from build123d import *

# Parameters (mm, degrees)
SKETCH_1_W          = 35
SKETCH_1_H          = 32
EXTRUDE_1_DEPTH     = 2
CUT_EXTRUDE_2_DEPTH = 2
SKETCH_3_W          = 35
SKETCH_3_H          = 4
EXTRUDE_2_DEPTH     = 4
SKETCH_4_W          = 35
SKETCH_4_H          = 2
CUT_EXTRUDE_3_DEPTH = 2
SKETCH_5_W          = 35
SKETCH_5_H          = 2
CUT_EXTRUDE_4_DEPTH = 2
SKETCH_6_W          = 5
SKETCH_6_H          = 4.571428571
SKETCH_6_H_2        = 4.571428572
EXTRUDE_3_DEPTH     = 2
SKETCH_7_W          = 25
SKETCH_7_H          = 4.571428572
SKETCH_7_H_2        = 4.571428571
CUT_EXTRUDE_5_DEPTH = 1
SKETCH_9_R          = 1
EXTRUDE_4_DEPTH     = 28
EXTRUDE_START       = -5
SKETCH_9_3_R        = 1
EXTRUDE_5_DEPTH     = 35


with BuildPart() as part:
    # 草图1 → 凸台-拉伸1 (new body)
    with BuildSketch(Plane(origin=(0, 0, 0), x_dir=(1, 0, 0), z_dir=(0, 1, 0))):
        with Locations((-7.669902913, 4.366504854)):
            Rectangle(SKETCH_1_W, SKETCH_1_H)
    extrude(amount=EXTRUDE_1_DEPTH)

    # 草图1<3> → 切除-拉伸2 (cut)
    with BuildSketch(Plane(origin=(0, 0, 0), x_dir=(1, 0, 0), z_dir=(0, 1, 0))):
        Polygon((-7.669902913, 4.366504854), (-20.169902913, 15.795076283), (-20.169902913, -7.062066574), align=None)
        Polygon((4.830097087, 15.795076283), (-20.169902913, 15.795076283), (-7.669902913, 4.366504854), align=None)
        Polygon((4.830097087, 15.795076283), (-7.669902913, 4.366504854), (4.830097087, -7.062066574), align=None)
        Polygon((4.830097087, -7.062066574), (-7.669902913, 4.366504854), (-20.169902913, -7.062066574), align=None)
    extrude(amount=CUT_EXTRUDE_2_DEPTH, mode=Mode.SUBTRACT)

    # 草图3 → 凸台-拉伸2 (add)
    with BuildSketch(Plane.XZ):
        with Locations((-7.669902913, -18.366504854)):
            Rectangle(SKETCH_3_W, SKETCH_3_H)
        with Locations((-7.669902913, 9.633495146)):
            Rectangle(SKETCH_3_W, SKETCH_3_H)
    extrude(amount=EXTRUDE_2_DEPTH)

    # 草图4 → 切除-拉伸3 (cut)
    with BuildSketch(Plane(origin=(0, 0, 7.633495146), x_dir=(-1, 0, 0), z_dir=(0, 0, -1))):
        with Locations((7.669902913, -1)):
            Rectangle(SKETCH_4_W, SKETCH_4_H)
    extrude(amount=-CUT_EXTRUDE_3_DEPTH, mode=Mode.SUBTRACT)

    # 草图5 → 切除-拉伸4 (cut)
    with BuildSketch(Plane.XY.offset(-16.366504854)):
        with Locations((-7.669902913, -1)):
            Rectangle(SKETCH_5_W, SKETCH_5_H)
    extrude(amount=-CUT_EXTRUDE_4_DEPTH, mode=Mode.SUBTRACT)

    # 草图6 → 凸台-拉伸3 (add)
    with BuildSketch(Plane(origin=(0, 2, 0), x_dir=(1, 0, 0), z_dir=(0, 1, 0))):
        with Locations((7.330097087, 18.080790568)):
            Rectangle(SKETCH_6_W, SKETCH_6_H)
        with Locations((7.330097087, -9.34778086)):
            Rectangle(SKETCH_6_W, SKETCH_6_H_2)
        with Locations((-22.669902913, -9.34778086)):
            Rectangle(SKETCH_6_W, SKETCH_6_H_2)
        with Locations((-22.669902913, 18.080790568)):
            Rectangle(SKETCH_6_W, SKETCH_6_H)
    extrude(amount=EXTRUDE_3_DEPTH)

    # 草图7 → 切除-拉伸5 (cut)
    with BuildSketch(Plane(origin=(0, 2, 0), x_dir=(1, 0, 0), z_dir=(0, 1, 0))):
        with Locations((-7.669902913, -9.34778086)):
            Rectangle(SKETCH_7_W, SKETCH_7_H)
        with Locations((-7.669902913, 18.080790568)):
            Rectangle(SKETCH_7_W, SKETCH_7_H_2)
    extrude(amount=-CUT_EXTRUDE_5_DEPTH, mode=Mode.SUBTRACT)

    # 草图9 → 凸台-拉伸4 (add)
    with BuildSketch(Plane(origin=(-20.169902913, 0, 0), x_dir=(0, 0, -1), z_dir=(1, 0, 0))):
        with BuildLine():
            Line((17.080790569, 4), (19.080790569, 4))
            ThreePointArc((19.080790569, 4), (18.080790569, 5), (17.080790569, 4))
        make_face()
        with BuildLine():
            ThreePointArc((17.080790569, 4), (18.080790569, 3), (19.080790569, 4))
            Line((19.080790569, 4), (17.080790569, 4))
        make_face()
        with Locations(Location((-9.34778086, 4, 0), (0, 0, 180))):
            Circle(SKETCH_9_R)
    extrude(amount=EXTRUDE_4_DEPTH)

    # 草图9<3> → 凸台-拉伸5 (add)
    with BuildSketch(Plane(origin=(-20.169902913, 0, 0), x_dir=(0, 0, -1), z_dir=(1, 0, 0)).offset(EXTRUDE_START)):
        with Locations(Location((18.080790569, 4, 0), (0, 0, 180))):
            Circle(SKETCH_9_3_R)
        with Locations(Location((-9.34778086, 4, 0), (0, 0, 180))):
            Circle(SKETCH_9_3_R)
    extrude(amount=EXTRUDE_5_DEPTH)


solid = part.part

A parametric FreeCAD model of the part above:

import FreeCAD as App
import Part
import Sketcher
Q = App.Units.Quantity


def add_polygon(sketch, points):
    """Adds a closed chain of lines whose ends are joined by coincident constraints."""
    first, n = sketch.GeometryCount, len(points)
    for a, b in zip(points, points[1:] + points[:1]):
        sketch.addGeometry(Part.LineSegment(App.Vector(*a, 0), App.Vector(*b, 0)), False)
    for i in range(n):
        sketch.addConstraint(Sketcher.Constraint("Coincident", first + i, 2, first + (i + 1) % n, 1))

doc = App.newDocument("Part")
params = doc.addObject("Spreadsheet::Sheet", "Params")
for row, (alias, value) in enumerate([
    ("sketch1_width", "35 mm"),
    ("sketch1_height", "32 mm"),
    ("pad1_length", "2 mm"),
    ("sketch2_width", "25 mm"),
    ("pocket1_length", "2 mm"),
    ("sketch3_width", "35 mm"),
    ("sketch3_height", "4 mm"),
    ("pad2_length", "4 mm"),
    ("sketch4_width", "35 mm"),
    ("sketch4_height", "2 mm"),
    ("pocket2_length", "2 mm"),
    ("sketch5_width", "35 mm"),
    ("sketch5_height", "2 mm"),
    ("pocket3_length", "2 mm"),
    ("sketch6_width", "5 mm"),
    ("pad3_length", "2 mm"),
    ("sketch7_width", "25 mm"),
    ("pocket4_length", "1 mm"),
    ("sketch8_diameter", "2 mm"),
    ("pad4_length", "28 mm"),
    ("sketch9_diameter", "2 mm"),
    ("pad5_length", "35 mm"),
], start=1):
    params.set(f"A{row}", alias)
    params.set(f"B{row}", "=" + value)
    params.setAlias(f"B{row}", alias)

body = doc.addObject("PartDesign::Body", "Body")

sketch1 = body.newObject("Sketcher::SketchObject", "Sketch")
sketch1.AttachmentSupport = (doc.getObject("XZ_Plane"), [""])
sketch1.MapMode = "FlatFace"
add_polygon(sketch1, [(-25, -20), (-25, 12), (10, 12), (10, -20)])
sketch1.addConstraint(Sketcher.Constraint("Vertical", 0))
sketch1.addConstraint(Sketcher.Constraint("Horizontal", 1))
sketch1.addConstraint(Sketcher.Constraint("Vertical", 2))
sketch1.addConstraint(Sketcher.Constraint("Horizontal", 3))
sketch1.addConstraint(Sketcher.Constraint("DistanceX", 1, 1, 1, 2, Q("35 mm")))
sketch1.addConstraint(Sketcher.Constraint("DistanceY", 0, 1, 0, 2, Q("32 mm")))
sketch1.addConstraint(Sketcher.Constraint("DistanceX", 0, 2, -1, 1, Q("25.169903 mm")))
sketch1.addConstraint(Sketcher.Constraint("DistanceY", -1, 1, 0, 2, Q("11.633495 mm")))
sketch1.setExpression("Constraints[8]", "Params.sketch1_width")
sketch1.setExpression("Constraints[9]", "Params.sketch1_height")
pad1 = body.newObject("PartDesign::Pad", "Pad")
pad1.Profile = sketch1
pad1.setExpression("Length", "Params.pad1_length")
pad1.Reversed = True

sketch2 = body.newObject("Sketcher::SketchObject", "Sketch001")
sketch2.AttachmentSupport = (doc.getObject("XZ_Plane"), [""])
sketch2.MapMode = "FlatFace"
add_polygon(sketch2, [(-20, -16), (-20, 7), (5, 7), (5, -16)])
sketch2.addConstraint(Sketcher.Constraint("Vertical", 0))
sketch2.addConstraint(Sketcher.Constraint("Horizontal", 1))
sketch2.addConstraint(Sketcher.Constraint("Vertical", 2))
sketch2.addConstraint(Sketcher.Constraint("Horizontal", 3))
sketch2.addConstraint(Sketcher.Constraint("DistanceX", 1, 1, 1, 2, Q("25 mm")))
sketch2.addConstraint(Sketcher.Constraint("DistanceY", 0, 1, 0, 2, Q("22.857143 mm")))
sketch2.addConstraint(Sketcher.Constraint("DistanceX", 0, 2, -1, 1, Q("20.169903 mm")))
sketch2.addConstraint(Sketcher.Constraint("DistanceY", -1, 1, 0, 2, Q("7.062067 mm")))
sketch2.setExpression("Constraints[8]", "Params.sketch2_width")
pocket1 = body.newObject("PartDesign::Pocket", "Pocket")
pocket1.Profile = sketch2
pocket1.setExpression("Length", "Params.pocket1_length")

sketch3 = body.newObject("Sketcher::SketchObject", "Sketch002")
sketch3.AttachmentSupport = (doc.getObject("XZ_Plane"), [""])
sketch3.MapMode = "FlatFace"
add_polygon(sketch3, [(-25.2, -16.4), (-25.2, -20.4), (9.8, -20.4), (9.8, -16.4)])
add_polygon(sketch3, [(-25.2, 11.6), (-25.2, 7.6), (9.8, 7.6), (9.8, 11.6)])
sketch3.addConstraint(Sketcher.Constraint("Vertical", 0))
sketch3.addConstraint(Sketcher.Constraint("Horizontal", 1))
sketch3.addConstraint(Sketcher.Constraint("Vertical", 2))
sketch3.addConstraint(Sketcher.Constraint("Horizontal", 3))
sketch3.addConstraint(Sketcher.Constraint("Vertical", 4))
sketch3.addConstraint(Sketcher.Constraint("Horizontal", 5))
sketch3.addConstraint(Sketcher.Constraint("Vertical", 6))
sketch3.addConstraint(Sketcher.Constraint("Horizontal", 7))
sketch3.addConstraint(Sketcher.Constraint("Vertical", 3, 2, 4, 2))
sketch3.addConstraint(Sketcher.Constraint("Vertical", 2, 2, 5, 2))
sketch3.addConstraint(Sketcher.Constraint("Equal", 2, 4))
sketch3.addConstraint(Sketcher.Constraint("DistanceX", 1, 1, 1, 2, Q("35 mm")))
sketch3.addConstraint(Sketcher.Constraint("DistanceY", 0, 2, 0, 1, Q("4 mm")))
sketch3.addConstraint(Sketcher.Constraint("DistanceY", 3, 2, 4, 2, Q("24 mm")))
sketch3.addConstraint(Sketcher.Constraint("DistanceX", 0, 2, -1, 1, Q("25.169903 mm")))
sketch3.addConstraint(Sketcher.Constraint("DistanceY", 0, 2, -1, 1, Q("20.366505 mm")))
sketch3.setExpression("Constraints[19]", "Params.sketch3_width")
sketch3.setExpression("Constraints[20]", "Params.sketch3_height")
pad2 = body.newObject("PartDesign::Pad", "Pad001")
pad2.Profile = sketch3
pad2.setExpression("Length", "Params.pad2_length")

sketch4 = body.newObject("Sketcher::SketchObject", "Sketch003")
sketch4.AttachmentSupport = (doc.getObject("XY_Plane"), [""])
sketch4.MapMode = "FlatFace"
sketch4.AttachmentOffset = App.Placement(App.Vector(0, 0, 7.633495), App.Rotation())
add_polygon(sketch4, [(9.8, 0), (9.8, -2), (-25.2, -2), (-25.2, 0)])
sketch4.addConstraint(Sketcher.Constraint("Vertical", 0))
sketch4.addConstraint(Sketcher.Constraint("Horizontal", 1))
sketch4.addConstraint(Sketcher.Constraint("Vertical", 2))
sketch4.addConstraint(Sketcher.Constraint("Horizontal", 3))
sketch4.addConstraint(Sketcher.Constraint("PointOnObject", 2, 2, -1))
sketch4.addConstraint(Sketcher.Constraint("DistanceX", 1, 2, 1, 1, Q("35 mm")))
sketch4.addConstraint(Sketcher.Constraint("DistanceY", 0, 2, 0, 1, Q("2 mm")))
sketch4.addConstraint(Sketcher.Constraint("DistanceX", -1, 1, 0, 2, Q("9.830097 mm")))
sketch4.setExpression("Constraints[9]", "Params.sketch4_width")
sketch4.setExpression("Constraints[10]", "Params.sketch4_height")
pocket2 = body.newObject("PartDesign::Pocket", "Pocket001")
pocket2.Profile = sketch4
pocket2.setExpression("Length", "Params.pocket2_length")
pocket2.Reversed = True

sketch5 = body.newObject("Sketcher::SketchObject", "Sketch004")
sketch5.AttachmentSupport = (doc.getObject("XY_Plane"), [""])
sketch5.MapMode = "FlatFace"
sketch5.AttachmentOffset = App.Placement(App.Vector(0, 0, -16.366505), App.Rotation())
add_polygon(sketch5, [(-25.2, 0), (-25.2, -2), (9.8, -2), (9.8, 0)])
sketch5.addConstraint(Sketcher.Constraint("Vertical", 0))
sketch5.addConstraint(Sketcher.Constraint("Horizontal", 1))
sketch5.addConstraint(Sketcher.Constraint("Vertical", 2))
sketch5.addConstraint(Sketcher.Constraint("Horizontal", 3))
sketch5.addConstraint(Sketcher.Constraint("PointOnObject", 2, 2, -1))
sketch5.addConstraint(Sketcher.Constraint("DistanceX", 1, 1, 1, 2, Q("35 mm")))
sketch5.addConstraint(Sketcher.Constraint("DistanceY", 0, 2, 0, 1, Q("2 mm")))
sketch5.addConstraint(Sketcher.Constraint("DistanceX", 0, 2, -1, 1, Q("25.169903 mm")))
sketch5.setExpression("Constraints[9]", "Params.sketch5_width")
sketch5.setExpression("Constraints[10]", "Params.sketch5_height")
pocket3 = body.newObject("PartDesign::Pocket", "Pocket002")
pocket3.Profile = sketch5
pocket3.setExpression("Length", "Params.pocket3_length")

sketch6 = body.newObject("Sketcher::SketchObject", "Sketch005")
sketch6.AttachmentSupport = (doc.getObject("XZ_Plane"), [""])
sketch6.MapMode = "FlatFace"
sketch6.AttachmentOffset = App.Placement(App.Vector(0, 0, -2), App.Rotation())
add_polygon(sketch6, [(4.8, -20.4), (4.8, -15.8), (9.8, -15.8), (9.8, -20.4)])
add_polygon(sketch6, [(4.8, 7.1), (4.8, 11.6), (9.8, 11.6), (9.8, 7.1)])
add_polygon(sketch6, [(-25.2, 7.1), (-25.2, 11.6), (-20.2, 11.6), (-20.2, 7.1)])
add_polygon(sketch6, [(-25.2, -20.4), (-25.2, -15.8), (-20.2, -15.8), (-20.2, -20.4)])
sketch6.addConstraint(Sketcher.Constraint("Vertical", 0))
sketch6.addConstraint(Sketcher.Constraint("Horizontal", 1))
sketch6.addConstraint(Sketcher.Constraint("Vertical", 2))
sketch6.addConstraint(Sketcher.Constraint("Horizontal", 3))
sketch6.addConstraint(Sketcher.Constraint("Vertical", 4))
sketch6.addConstraint(Sketcher.Constraint("Horizontal", 5))
sketch6.addConstraint(Sketcher.Constraint("Vertical", 6))
sketch6.addConstraint(Sketcher.Constraint("Horizontal", 7))
sketch6.addConstraint(Sketcher.Constraint("Vertical", 8))
sketch6.addConstraint(Sketcher.Constraint("Horizontal", 9))
sketch6.addConstraint(Sketcher.Constraint("Vertical", 10))
sketch6.addConstraint(Sketcher.Constraint("Horizontal", 11))
sketch6.addConstraint(Sketcher.Constraint("Vertical", 12))
sketch6.addConstraint(Sketcher.Constraint("Horizontal", 13))
sketch6.addConstraint(Sketcher.Constraint("Vertical", 14))
sketch6.addConstraint(Sketcher.Constraint("Horizontal", 15))
sketch6.addConstraint(Sketcher.Constraint("Horizontal", 5, 2, 8, 2))
sketch6.addConstraint(Sketcher.Constraint("Horizontal", 7, 2, 10, 2))
sketch6.addConstraint(Sketcher.Constraint("Horizontal", 1, 2, 12, 2))
sketch6.addConstraint(Sketcher.Constraint("Horizontal", 3, 2, 14, 2))
sketch6.addConstraint(Sketcher.Constraint("Vertical", 3, 2, 4, 2))
sketch6.addConstraint(Sketcher.Constraint("Vertical", 2, 2, 5, 2))
sketch6.addConstraint(Sketcher.Constraint("Vertical", 11, 2, 12, 2))
sketch6.addConstraint(Sketcher.Constraint("Vertical", 10, 2, 13, 2))
sketch6.addConstraint(Sketcher.Constraint("Equal", 7, 9))
sketch6.addConstraint(Sketcher.Constraint("Equal", 2, 4))
sketch6.addConstraint(Sketcher.Constraint("DistanceX", 1, 1, 1, 2, Q("5 mm")))
sketch6.addConstraint(Sketcher.Constraint("DistanceY", 3, 2, 4, 2, Q("32 mm")))
sketch6.addConstraint(Sketcher.Constraint("DistanceX", 8, 2, 4, 2, Q("30 mm")))
sketch6.addConstraint(Sketcher.Constraint("DistanceY", 0, 1, 0, 2, Q("4.571429 mm")))
sketch6.addConstraint(Sketcher.Constraint("DistanceX", -1, 1, 0, 2, Q("4.830097 mm")))
sketch6.addConstraint(Sketcher.Constraint("DistanceY", 0, 2, -1, 1, Q("15.795076 mm")))
sketch6.setExpression("Constraints[42]", "Params.sketch6_width")
pad3 = body.newObject("PartDesign::Pad", "Pad002")
pad3.Profile = sketch6
pad3.setExpression("Length", "Params.pad3_length")
pad3.Reversed = True

sketch7 = body.newObject("Sketcher::SketchObject", "Sketch006")
sketch7.AttachmentSupport = (doc.getObject("XZ_Plane"), [""])
sketch7.MapMode = "FlatFace"
sketch7.AttachmentOffset = App.Placement(App.Vector(0, 0, -2), App.Rotation())
add_polygon(sketch7, [(-20.2, 7.1), (-20.2, 11.6), (4.8, 11.6), (4.8, 7.1)])
add_polygon(sketch7, [(-20.2, -20.4), (-20.2, -15.8), (4.8, -15.8), (4.8, -20.4)])
sketch7.addConstraint(Sketcher.Constraint("Vertical", 0))
sketch7.addConstraint(Sketcher.Constraint("Horizontal", 1))
sketch7.addConstraint(Sketcher.Constraint("Vertical", 2))
sketch7.addConstraint(Sketcher.Constraint("Horizontal", 3))
sketch7.addConstraint(Sketcher.Constraint("Vertical", 4))
sketch7.addConstraint(Sketcher.Constraint("Horizontal", 5))
sketch7.addConstraint(Sketcher.Constraint("Vertical", 6))
sketch7.addConstraint(Sketcher.Constraint("Horizontal", 7))
sketch7.addConstraint(Sketcher.Constraint("Vertical", 3, 2, 4, 2))
sketch7.addConstraint(Sketcher.Constraint("Vertical", 2, 2, 5, 2))
sketch7.addConstraint(Sketcher.Constraint("Equal", 2, 4))
sketch7.addConstraint(Sketcher.Constraint("DistanceX", 1, 1, 1, 2, Q("25 mm")))
sketch7.addConstraint(Sketcher.Constraint("DistanceY", 6, 2, 1, 2, Q("32 mm")))
sketch7.addConstraint(Sketcher.Constraint("DistanceY", 0, 1, 0, 2, Q("4.571429 mm")))
sketch7.addConstraint(Sketcher.Constraint("DistanceX", 0, 2, -1, 1, Q("20.169903 mm")))
sketch7.addConstraint(Sketcher.Constraint("DistanceY", -1, 1, 0, 2, Q("11.633495 mm")))
sketch7.setExpression("Constraints[19]", "Params.sketch7_width")
pocket4 = body.newObject("PartDesign::Pocket", "Pocket003")
pocket4.Profile = sketch7
pocket4.setExpression("Length", "Params.pocket4_length")
pocket4.Reversed = True

sketch8 = body.newObject("Sketcher::SketchObject", "Sketch007")
sketch8.AttachmentSupport = (doc.getObject("YZ_Plane"), [""])
sketch8.MapMode = "FlatFace"
sketch8.AttachmentOffset = App.Placement(App.Vector(0, 0, -20.169903), App.Rotation())
sketch8.addGeometry(Part.Circle(App.Vector(4, -18.1, 0), App.Vector(0, 0, 1), 1), False)
sketch8.addGeometry(Part.Circle(App.Vector(4, 9.3, 0), App.Vector(0, 0, 1), 1), False)
sketch8.addConstraint(Sketcher.Constraint("Equal", 0, 1))
sketch8.addConstraint(Sketcher.Constraint("Vertical", 0, 3, 1, 3))
sketch8.addConstraint(Sketcher.Constraint("Diameter", 0, Q("2 mm")))
sketch8.addConstraint(Sketcher.Constraint("DistanceX", -1, 1, 0, 3, Q("4 mm")))
sketch8.addConstraint(Sketcher.Constraint("DistanceY", 0, 3, -1, 1, Q("18.080791 mm")))
sketch8.addConstraint(Sketcher.Constraint("DistanceY", -1, 1, 1, 3, Q("9.347781 mm")))
sketch8.setExpression("Constraints[2]", "Params.sketch8_diameter")
pad4 = body.newObject("PartDesign::Pad", "Pad003")
pad4.Profile = sketch8
pad4.setExpression("Length", "Params.pad4_length")

sketch9 = body.newObject("Sketcher::SketchObject", "Sketch008")
sketch9.AttachmentSupport = (doc.getObject("YZ_Plane"), [""])
sketch9.MapMode = "FlatFace"
sketch9.AttachmentOffset = App.Placement(App.Vector(0, 0, -25.169903), App.Rotation())
sketch9.addGeometry(Part.Circle(App.Vector(4, -18.1, 0), App.Vector(0, 0, 1), 1), False)
sketch9.addGeometry(Part.Circle(App.Vector(4, 9.3, 0), App.Vector(0, 0, 1), 1), False)
sketch9.addConstraint(Sketcher.Constraint("Equal", 0, 1))
sketch9.addConstraint(Sketcher.Constraint("Vertical", 0, 3, 1, 3))
sketch9.addConstraint(Sketcher.Constraint("Diameter", 0, Q("2 mm")))
sketch9.addConstraint(Sketcher.Constraint("DistanceX", -1, 1, 0, 3, Q("4 mm")))
sketch9.addConstraint(Sketcher.Constraint("DistanceY", 0, 3, -1, 1, Q("18.080791 mm")))
sketch9.addConstraint(Sketcher.Constraint("DistanceY", -1, 1, 1, 3, Q("9.347781 mm")))
sketch9.setExpression("Constraints[2]", "Params.sketch9_diameter")
pad5 = body.newObject("PartDesign::Pad", "Pad004")
pad5.Profile = sketch9
pad5.setExpression("Length", "Params.pad5_length")

doc.recompute()
